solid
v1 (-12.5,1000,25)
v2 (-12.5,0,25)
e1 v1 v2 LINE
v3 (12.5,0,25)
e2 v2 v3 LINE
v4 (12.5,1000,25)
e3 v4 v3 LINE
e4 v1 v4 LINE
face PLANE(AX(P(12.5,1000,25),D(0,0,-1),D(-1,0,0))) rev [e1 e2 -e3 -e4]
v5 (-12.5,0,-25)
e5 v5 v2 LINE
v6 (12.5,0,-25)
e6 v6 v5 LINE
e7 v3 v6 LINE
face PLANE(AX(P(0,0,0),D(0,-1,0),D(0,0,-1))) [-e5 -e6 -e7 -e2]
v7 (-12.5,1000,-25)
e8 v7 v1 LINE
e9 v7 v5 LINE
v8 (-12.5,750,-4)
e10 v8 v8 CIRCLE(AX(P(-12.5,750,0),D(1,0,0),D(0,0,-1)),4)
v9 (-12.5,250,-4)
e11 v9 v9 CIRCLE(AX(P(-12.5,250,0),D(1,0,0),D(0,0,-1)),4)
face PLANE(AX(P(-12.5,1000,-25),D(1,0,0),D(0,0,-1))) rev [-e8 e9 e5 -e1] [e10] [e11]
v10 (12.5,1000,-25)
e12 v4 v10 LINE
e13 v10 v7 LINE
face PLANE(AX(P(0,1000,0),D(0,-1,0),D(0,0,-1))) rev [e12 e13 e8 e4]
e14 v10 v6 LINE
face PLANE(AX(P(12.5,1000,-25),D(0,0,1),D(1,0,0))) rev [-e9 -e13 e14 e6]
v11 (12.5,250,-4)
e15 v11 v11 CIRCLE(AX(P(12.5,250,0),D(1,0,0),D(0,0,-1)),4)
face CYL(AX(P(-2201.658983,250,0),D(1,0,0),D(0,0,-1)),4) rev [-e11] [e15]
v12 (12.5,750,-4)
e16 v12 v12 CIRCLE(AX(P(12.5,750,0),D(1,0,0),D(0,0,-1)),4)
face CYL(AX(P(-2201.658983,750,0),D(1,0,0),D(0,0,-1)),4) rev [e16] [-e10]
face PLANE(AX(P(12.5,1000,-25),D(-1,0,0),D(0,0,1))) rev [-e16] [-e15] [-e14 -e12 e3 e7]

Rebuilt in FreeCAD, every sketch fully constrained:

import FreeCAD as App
import Part
import Sketcher
Q = App.Units.Quantity

doc = App.newDocument("Part")
body = doc.addObject("PartDesign::Body", "Body")

sketch1 = body.newObject("Sketcher::SketchObject", "Sketch")
sketch1.AttachmentSupport = (doc.getObject("XZ_Plane"), [""])
sketch1.MapMode = "FlatFace"
sketch1.addGeometry([
    Part.LineSegment(App.Vector(-12, -25, 0), App.Vector(-12, 25, 0)),
    Part.LineSegment(App.Vector(-12, 25, 0), App.Vector(12, 25, 0)),
    Part.LineSegment(App.Vector(12, 25, 0), App.Vector(12, -25, 0)),
    Part.LineSegment(App.Vector(12, -25, 0), App.Vector(-12, -25, 0)),
], False)
sketch1.addConstraint([
    Sketcher.Constraint("Coincident", 0, 2, 1, 1),
    Sketcher.Constraint("Coincident", 1, 2, 2, 1),
    Sketcher.Constraint("Coincident", 2, 2, 3, 1),
    Sketcher.Constraint("Coincident", 3, 2, 0, 1),
    Sketcher.Constraint("Vertical", 0),
    Sketcher.Constraint("Horizontal", 1),
    Sketcher.Constraint("Vertical", 2),
    Sketcher.Constraint("Horizontal", 3),
    Sketcher.Constraint("Symmetric", 0, 2, 2, 2, -1, 1),
    Sketcher.Constraint("DistanceX", 1, 1, 1, 2, Q("25 mm")),
    Sketcher.Constraint("DistanceY", 0, 1, 0, 2, Q("50 mm")),
])
pad1 = body.newObject("PartDesign::Pad", "Pad")
pad1.Profile = sketch1
pad1.Length = 1000
pad1.Reversed = True

sketch2 = body.newObject("Sketcher::SketchObject", "Sketch001")
sketch2.AttachmentSupport = (doc.getObject("YZ_Plane"), [""])
sketch2.MapMode = "FlatFace"
sketch2.AttachmentOffset = App.Placement(App.Vector(0, 0, 12.5), App.Rotation())
sketch2.addGeometry([
    Part.Circle(App.Vector(250, 0, 0), App.Vector(0, 0, 1), 4),
    Part.Circle(App.Vector(750, 0, 0), App.Vector(0, 0, 1), 4),
], False)
sketch2.addConstraint([
    Sketcher.Constraint("Equal", 0, 1),
    Sketcher.Constraint("PointOnObject", 0, 3, -1),
    Sketcher.Constraint("PointOnObject", 1, 3, -1),
    Sketcher.Constraint("Diameter", 0, Q("8 mm")),
    Sketcher.Constraint("DistanceX", -1, 1, 0, 3, Q("250 mm")),
    Sketcher.Constraint("DistanceX", -1, 1, 1, 3, Q("750 mm")),
])
pocket1 = body.newObject("PartDesign::Pocket", "Pocket")
pocket1.Profile = sketch2
pocket1.Length = 2214.158983

doc.recompute()
